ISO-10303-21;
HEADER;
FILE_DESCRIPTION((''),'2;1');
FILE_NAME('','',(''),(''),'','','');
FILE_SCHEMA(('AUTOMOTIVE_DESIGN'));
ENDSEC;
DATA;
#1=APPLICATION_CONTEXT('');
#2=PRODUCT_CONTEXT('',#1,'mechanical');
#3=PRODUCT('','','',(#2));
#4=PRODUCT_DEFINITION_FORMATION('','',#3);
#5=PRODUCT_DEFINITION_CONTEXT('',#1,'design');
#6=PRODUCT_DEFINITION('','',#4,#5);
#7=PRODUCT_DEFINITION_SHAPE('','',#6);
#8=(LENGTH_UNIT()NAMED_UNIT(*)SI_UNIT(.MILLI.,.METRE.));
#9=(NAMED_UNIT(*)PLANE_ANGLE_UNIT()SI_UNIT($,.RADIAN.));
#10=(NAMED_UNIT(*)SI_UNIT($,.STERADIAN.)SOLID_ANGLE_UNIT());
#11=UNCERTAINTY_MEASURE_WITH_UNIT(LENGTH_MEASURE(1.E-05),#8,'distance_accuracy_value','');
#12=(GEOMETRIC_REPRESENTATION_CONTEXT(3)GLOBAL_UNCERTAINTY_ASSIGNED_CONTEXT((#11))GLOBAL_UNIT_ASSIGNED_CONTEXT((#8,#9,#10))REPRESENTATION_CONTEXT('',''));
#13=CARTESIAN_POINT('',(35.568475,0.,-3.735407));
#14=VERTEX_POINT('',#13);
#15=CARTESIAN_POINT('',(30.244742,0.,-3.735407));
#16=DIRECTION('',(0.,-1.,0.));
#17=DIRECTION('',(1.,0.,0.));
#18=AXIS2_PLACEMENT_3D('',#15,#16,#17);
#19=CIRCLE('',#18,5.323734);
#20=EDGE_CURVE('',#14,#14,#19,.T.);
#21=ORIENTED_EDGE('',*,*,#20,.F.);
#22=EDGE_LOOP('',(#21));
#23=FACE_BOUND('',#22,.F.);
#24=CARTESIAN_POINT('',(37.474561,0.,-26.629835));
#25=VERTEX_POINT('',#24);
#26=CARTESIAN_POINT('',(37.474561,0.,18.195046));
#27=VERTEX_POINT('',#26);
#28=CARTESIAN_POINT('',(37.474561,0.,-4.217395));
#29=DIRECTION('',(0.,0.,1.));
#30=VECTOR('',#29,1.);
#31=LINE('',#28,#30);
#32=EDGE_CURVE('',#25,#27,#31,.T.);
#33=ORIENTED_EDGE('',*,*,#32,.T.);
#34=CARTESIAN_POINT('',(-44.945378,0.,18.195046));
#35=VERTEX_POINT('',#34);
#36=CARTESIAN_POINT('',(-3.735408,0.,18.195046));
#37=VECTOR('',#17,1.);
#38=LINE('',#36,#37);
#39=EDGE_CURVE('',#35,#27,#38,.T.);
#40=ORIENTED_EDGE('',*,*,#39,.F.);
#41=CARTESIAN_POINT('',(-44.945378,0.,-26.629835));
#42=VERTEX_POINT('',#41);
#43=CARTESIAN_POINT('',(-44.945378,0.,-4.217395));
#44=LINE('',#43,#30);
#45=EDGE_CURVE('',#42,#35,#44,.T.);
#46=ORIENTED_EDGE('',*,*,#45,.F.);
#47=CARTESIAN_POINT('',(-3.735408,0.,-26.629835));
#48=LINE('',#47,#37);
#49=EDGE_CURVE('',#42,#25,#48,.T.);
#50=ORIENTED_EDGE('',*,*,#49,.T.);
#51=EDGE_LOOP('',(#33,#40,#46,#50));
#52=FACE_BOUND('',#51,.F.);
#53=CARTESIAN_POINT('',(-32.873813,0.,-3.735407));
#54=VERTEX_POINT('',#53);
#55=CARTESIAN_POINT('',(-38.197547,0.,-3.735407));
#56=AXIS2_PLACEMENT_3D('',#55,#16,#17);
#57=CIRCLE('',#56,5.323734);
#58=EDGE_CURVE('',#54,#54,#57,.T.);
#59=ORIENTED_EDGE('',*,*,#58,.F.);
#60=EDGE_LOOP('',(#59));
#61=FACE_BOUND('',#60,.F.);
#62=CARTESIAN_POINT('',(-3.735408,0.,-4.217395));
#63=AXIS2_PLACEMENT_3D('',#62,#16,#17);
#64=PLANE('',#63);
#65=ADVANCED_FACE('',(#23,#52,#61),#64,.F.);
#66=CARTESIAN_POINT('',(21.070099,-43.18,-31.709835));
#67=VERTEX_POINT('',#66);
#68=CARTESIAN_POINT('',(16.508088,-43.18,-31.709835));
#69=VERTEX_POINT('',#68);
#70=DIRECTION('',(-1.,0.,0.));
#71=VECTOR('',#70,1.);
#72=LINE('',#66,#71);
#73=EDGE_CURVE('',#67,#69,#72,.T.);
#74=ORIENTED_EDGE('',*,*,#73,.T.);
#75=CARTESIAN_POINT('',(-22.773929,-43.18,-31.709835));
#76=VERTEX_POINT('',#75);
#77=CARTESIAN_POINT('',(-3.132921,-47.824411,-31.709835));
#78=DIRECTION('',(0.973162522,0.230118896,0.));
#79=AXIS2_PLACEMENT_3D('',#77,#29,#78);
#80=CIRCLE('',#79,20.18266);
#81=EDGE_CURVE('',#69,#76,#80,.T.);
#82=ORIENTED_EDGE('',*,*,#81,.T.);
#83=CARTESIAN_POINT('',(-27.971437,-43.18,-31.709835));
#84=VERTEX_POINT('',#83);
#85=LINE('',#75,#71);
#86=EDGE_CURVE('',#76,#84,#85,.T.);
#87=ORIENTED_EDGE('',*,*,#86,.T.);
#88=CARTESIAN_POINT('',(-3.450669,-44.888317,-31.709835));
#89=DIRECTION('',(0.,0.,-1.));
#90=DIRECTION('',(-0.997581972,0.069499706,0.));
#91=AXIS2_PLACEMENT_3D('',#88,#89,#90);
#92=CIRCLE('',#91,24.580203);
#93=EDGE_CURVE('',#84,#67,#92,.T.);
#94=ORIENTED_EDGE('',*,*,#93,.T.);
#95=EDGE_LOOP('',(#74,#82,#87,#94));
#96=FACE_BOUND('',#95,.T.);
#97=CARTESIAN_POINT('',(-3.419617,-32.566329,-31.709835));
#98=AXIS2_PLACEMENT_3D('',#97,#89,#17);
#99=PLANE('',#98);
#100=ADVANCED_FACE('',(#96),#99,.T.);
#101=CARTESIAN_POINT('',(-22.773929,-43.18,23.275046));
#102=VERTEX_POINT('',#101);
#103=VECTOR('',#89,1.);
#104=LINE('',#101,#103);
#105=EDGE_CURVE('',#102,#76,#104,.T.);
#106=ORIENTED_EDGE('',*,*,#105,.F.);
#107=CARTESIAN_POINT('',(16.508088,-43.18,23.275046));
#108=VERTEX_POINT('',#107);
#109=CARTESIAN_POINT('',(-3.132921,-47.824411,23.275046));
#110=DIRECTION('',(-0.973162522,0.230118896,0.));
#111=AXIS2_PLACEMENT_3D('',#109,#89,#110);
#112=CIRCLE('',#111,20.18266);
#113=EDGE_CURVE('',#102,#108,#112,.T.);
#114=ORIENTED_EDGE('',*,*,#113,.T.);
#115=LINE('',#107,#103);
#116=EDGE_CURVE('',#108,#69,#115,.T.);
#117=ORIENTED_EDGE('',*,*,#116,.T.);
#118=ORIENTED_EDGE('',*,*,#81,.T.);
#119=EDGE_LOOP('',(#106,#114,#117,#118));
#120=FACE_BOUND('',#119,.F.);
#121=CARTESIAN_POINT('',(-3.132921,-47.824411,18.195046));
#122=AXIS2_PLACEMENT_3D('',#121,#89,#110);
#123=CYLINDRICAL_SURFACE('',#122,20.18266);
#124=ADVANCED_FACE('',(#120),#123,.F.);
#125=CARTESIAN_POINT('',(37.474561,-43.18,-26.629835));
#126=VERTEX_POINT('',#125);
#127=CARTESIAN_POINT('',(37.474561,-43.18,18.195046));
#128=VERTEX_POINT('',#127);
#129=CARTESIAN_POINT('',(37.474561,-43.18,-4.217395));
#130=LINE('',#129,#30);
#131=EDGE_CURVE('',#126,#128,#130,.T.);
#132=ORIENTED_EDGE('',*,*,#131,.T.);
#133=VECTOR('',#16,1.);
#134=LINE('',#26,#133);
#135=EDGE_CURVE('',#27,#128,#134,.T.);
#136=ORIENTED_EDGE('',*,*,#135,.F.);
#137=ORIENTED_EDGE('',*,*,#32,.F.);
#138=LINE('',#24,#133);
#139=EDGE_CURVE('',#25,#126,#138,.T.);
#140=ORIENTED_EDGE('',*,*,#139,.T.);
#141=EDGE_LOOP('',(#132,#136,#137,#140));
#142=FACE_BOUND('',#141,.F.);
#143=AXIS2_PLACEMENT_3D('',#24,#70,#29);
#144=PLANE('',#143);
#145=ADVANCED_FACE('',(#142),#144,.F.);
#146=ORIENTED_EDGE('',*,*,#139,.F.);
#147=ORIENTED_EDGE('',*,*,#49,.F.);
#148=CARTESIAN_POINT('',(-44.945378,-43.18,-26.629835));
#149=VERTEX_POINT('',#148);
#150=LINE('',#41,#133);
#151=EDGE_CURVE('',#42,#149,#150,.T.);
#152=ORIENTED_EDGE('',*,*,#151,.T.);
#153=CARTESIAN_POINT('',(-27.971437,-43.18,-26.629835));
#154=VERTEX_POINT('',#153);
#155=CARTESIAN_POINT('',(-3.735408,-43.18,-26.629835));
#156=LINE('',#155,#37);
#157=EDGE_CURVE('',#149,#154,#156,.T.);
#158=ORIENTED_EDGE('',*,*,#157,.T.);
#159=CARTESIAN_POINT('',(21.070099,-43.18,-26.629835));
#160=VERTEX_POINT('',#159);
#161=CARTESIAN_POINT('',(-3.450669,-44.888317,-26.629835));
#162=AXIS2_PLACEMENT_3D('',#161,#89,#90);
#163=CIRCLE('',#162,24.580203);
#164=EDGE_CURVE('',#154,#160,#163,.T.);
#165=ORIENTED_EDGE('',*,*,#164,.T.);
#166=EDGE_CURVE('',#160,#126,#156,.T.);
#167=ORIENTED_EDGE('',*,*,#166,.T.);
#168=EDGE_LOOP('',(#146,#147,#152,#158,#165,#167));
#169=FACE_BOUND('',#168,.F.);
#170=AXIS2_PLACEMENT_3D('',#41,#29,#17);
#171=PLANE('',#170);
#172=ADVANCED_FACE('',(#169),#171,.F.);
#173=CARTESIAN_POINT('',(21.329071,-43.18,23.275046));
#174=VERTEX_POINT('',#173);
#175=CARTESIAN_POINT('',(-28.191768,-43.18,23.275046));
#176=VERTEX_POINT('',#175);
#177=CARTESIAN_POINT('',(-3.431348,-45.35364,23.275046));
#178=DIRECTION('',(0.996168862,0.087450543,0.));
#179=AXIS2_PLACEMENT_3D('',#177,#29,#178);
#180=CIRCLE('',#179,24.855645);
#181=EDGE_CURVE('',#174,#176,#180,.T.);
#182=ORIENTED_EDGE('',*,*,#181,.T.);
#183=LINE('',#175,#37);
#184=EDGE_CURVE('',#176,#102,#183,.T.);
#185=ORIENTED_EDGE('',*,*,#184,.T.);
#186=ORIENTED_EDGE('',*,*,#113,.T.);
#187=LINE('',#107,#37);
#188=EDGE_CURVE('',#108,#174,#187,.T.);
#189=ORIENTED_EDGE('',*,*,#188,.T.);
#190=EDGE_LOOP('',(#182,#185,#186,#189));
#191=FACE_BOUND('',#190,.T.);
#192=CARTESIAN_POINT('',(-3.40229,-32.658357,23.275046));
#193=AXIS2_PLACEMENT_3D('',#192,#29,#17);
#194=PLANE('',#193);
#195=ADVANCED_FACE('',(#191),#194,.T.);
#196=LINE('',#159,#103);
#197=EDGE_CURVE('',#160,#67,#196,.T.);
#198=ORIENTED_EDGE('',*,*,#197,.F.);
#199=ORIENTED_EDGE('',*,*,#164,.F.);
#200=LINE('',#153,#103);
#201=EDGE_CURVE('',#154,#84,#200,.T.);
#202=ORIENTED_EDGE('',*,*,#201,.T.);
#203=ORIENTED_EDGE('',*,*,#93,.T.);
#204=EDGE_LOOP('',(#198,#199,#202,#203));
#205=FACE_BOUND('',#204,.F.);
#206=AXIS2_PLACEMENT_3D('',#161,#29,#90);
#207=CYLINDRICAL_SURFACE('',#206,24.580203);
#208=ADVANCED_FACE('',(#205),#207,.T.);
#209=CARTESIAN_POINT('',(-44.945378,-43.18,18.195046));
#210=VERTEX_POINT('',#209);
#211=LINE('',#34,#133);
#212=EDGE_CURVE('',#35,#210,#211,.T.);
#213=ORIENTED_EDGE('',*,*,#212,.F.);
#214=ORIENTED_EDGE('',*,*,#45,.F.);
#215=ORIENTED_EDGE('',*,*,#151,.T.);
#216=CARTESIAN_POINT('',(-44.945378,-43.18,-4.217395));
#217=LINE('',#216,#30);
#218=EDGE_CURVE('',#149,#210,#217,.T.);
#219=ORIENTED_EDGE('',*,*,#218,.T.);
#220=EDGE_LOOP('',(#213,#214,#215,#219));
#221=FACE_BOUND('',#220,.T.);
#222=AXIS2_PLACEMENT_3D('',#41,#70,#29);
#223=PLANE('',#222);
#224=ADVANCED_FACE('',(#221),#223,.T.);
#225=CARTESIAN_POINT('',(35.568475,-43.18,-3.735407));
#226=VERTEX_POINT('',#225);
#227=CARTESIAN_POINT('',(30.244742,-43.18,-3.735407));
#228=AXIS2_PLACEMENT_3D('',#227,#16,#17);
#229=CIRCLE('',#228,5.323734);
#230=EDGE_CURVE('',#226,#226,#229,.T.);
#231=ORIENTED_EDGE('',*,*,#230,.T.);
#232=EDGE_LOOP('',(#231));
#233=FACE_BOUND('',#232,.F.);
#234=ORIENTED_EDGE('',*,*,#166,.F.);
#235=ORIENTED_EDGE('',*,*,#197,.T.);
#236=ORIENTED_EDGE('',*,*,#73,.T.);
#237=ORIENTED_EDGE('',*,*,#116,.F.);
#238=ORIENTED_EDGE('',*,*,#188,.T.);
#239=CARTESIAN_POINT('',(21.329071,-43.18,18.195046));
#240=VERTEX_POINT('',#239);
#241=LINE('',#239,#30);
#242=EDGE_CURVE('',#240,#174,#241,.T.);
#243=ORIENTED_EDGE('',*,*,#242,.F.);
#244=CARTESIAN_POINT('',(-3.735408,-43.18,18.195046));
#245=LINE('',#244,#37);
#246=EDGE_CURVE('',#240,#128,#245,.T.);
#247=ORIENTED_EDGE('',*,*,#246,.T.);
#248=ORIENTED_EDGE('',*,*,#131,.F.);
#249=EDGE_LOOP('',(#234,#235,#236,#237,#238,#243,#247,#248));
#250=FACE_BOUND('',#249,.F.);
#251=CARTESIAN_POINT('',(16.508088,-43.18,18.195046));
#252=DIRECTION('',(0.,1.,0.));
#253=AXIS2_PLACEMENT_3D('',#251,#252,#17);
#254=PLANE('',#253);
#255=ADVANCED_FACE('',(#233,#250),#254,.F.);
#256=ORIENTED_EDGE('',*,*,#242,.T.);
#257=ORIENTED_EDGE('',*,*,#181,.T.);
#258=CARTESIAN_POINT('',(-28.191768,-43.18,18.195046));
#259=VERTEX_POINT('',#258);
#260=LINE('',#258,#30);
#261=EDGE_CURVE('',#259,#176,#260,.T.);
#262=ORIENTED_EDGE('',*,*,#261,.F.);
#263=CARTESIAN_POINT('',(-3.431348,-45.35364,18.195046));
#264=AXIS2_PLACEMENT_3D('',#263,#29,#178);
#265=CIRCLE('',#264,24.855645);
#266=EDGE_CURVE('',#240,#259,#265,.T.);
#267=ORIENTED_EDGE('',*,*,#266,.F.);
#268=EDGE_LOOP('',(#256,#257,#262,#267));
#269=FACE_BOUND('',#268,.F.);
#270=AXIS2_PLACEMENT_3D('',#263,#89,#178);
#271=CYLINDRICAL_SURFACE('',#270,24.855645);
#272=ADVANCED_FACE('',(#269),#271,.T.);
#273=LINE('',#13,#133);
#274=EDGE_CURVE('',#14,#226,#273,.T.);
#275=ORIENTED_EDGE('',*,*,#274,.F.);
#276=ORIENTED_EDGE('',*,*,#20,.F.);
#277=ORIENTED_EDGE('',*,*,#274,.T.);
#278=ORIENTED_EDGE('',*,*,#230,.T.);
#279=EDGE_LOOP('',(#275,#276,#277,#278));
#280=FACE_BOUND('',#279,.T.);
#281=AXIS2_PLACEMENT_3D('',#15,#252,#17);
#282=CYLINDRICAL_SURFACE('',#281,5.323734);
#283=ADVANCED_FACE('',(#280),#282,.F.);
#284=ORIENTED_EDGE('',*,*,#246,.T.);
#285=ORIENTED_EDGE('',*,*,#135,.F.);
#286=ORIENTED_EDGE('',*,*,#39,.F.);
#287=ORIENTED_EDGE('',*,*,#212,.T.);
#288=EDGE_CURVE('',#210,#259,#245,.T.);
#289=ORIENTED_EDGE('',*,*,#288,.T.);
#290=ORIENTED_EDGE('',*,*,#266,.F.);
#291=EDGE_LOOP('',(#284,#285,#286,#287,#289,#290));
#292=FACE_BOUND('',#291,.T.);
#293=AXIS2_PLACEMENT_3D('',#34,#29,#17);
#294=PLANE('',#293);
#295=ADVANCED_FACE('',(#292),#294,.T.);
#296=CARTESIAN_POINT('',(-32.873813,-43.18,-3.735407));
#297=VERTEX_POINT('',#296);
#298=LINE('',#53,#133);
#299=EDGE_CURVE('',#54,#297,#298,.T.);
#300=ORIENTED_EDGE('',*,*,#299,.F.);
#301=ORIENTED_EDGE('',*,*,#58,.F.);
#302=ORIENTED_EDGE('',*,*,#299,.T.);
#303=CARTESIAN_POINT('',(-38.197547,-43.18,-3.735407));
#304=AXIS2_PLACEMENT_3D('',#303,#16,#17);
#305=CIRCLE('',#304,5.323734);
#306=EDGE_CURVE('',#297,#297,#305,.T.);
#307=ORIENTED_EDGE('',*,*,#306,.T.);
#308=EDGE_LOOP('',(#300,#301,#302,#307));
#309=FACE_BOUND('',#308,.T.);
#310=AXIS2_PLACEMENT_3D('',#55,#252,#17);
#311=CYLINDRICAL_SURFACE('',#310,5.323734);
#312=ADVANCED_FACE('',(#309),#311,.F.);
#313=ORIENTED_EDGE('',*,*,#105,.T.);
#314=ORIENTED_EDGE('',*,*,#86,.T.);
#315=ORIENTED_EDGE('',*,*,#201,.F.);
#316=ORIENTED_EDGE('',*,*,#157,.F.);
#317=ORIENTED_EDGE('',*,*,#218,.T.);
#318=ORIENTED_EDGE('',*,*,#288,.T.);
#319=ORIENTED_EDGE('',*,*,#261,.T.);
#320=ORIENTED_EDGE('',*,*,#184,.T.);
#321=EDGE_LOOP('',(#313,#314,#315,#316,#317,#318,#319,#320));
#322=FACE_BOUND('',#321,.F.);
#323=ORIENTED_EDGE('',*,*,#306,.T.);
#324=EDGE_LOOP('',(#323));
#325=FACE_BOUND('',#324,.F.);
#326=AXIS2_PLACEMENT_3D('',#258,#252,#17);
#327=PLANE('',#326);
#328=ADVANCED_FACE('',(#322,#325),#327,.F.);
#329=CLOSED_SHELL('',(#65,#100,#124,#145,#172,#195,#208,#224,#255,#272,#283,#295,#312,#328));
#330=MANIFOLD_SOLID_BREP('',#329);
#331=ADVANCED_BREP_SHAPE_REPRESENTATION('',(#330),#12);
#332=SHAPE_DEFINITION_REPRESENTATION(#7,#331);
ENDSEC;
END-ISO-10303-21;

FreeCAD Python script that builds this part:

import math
import FreeCAD as App
import Part
import Sketcher
from FreeCAD import Vector
Q = App.Units.Quantity


def add_polygon(sketch, points):
    """Adds a closed chain of lines whose ends are joined by coincident constraints."""
    first, n = sketch.GeometryCount, len(points)
    for a, b in zip(points, points[1:] + points[:1]):
        sketch.addGeometry(Part.LineSegment(App.Vector(*a, 0), App.Vector(*b, 0)), False)
    for i in range(n):
        sketch.addConstraint(Sketcher.Constraint("Coincident", first + i, 2, first + (i + 1) % n, 1))

doc = App.newDocument("Part")
body = doc.addObject("PartDesign::Body", "Body")

sketch1 = body.newObject("Sketcher::SketchObject", "Sketch")
sketch1.AttachmentSupport = (doc.getObject("XZ_Plane"), [""])
sketch1.MapMode = "FlatFace"
add_polygon(sketch1, [(-45, 18), (-45, -27), (37, -27), (37, 18)])
sketch1.addGeometry(Part.Circle(Vector(-38, -4, 0), Vector(0, 0, 1), 5), False)
sketch1.addGeometry(Part.Circle(Vector(30, -4, 0), Vector(0, 0, 1), 5), False)
sketch1.addConstraint([
    Sketcher.Constraint("Vertical", 0),
    Sketcher.Constraint("Horizontal", 1),
    Sketcher.Constraint("Vertical", 2),
    Sketcher.Constraint("Horizontal", 3),
    Sketcher.Constraint("Equal", 4, 5),
    Sketcher.Constraint("Horizontal", 4, 3, 5, 3),
    Sketcher.Constraint("Diameter", 4, Q("10.647468 mm")),
    Sketcher.Constraint("DistanceX", 1, 1, 1, 2, Q("82.419939 mm")),
    Sketcher.Constraint("DistanceY", 0, 2, 0, 1, Q("44.824881 mm")),
    Sketcher.Constraint("DistanceX", -1, 1, 5, 3, Q("30.244742 mm")),
    Sketcher.Constraint("DistanceX", -1, 1, 1, 2, Q("37.474561 mm")),
    Sketcher.Constraint("DistanceX", 4, 3, 5, 3, Q("68.442289 mm")),
    Sketcher.Constraint("DistanceY", 0, 2, 4, 3, Q("22.894429 mm")),
    Sketcher.Constraint("DistanceY", 4, 3, -1, 1, Q("3.735407 mm")),
])
pad1 = body.newObject("PartDesign::Pad", "Pad")
pad1.Profile = sketch1
pad1.Length = Q("1.7 in")

sketch2 = body.newObject("Sketcher::SketchObject", "Sketch001")
sketch2.AttachmentSupport = (doc.getObject("XY_Plane"), [""])
sketch2.MapMode = "FlatFace"
sketch2.AttachmentOffset = App.Placement(Vector(0, 0, -26.629835), App.Rotation())
sketch2.addGeometry([
    Part.LineSegment(Vector(17, -43, 0), Vector(-23, -43, 0)),
    Part.ArcOfCircle(Part.Circle(Vector(-3, -48, 0), Vector(0, 0, 1), 20), math.radians(13), math.radians(167)),
], False)
sketch2.addConstraint([
    Sketcher.Constraint("Coincident", 0, 1, 1, 1),
    Sketcher.Constraint("Coincident", 1, 2, 0, 2),
    Sketcher.Constraint("Horizontal", 0),
    Sketcher.Constraint("DistanceY", 0, 1, -1, 1, Q("1.7 in")),
    Sketcher.Constraint("Radius", 1, Q("20.18266 mm")),
    Sketcher.Constraint("DistanceX", 0, 2, 0, 1, Q("39.282016 mm")),
    Sketcher.Constraint("DistanceX", 1, 3, -1, 1, Q("3.132921 mm")),
])
pocket1 = body.newObject("PartDesign::Pocket", "Pocket")
pocket1.Profile = sketch2
pocket1.Length = Q("2 in")
pocket1.Reversed = True

sketch3 = body.newObject("Sketcher::SketchObject", "Sketch002")
sketch3.AttachmentSupport = (doc.getObject("XY_Plane"), [""])
sketch3.MapMode = "FlatFace"
sketch3.AttachmentOffset = App.Placement(Vector(0, 0, -26.629835), App.Rotation())
sketch3.addGeometry([
    Part.LineSegment(Vector(-22.8, -43.2, 0), Vector(-28, -43.2, 0)),
    Part.ArcOfCircle(Part.Circle(Vector(-3.5, -44.9, 0), Vector(0, 0, 1), 24.6), math.radians(4), math.radians(176)),
    Part.LineSegment(Vector(21.1, -43.2, 0), Vector(16.5, -43.2, 0)),
    Part.ArcOfCircle(Part.Circle(Vector(-3.1, -47.8, 0), Vector(0, 0, 1), 20.2), math.radians(13), math.radians(167)),
], False)
sketch3.addConstraint([
    Sketcher.Constraint("Coincident", 0, 2, 1, 2),
    Sketcher.Constraint("Coincident", 1, 1, 2, 1),
    Sketcher.Constraint("Coincident", 2, 2, 3, 1),
    Sketcher.Constraint("Coincident", 3, 2, 0, 1),
    Sketcher.Constraint("Horizontal", 0),
    Sketcher.Constraint("Horizontal", 2),
    Sketcher.Constraint("Horizontal", 0, 2, 1, 1),
    Sketcher.Constraint("DistanceY", 0, 2, -1, 1, Q("1.7 in")),
    Sketcher.Constraint("Radius", 3, Q("20.18266 mm")),
    Sketcher.Constraint("Radius", 1, Q("24.580203 mm")),
    Sketcher.Constraint("DistanceX", 0, 2, 0, 1, Q("5.197508 mm")),
    Sketcher.Constraint("DistanceX", 2, 2, 2, 1, Q("4.562011 mm")),
    Sketcher.Constraint("DistanceX", -1, 1, 1, 1, Q("21.070099 mm")),
    Sketcher.Constraint("DistanceX", 1, 3, -1, 1, Q("3.450669 mm")),
])
pad2 = body.newObject("PartDesign::Pad", "Pad001")
pad2.Profile = sketch3
pad2.Length = Q("0.2 in")
pad2.Reversed = True

sketch4 = body.newObject("Sketcher::SketchObject", "Sketch003")
sketch4.AttachmentSupport = (doc.getObject("XY_Plane"), [""])
sketch4.MapMode = "FlatFace"
sketch4.AttachmentOffset = App.Placement(Vector(0, 0, 18.195046), App.Rotation())
sketch4.addGeometry([
    Part.LineSegment(Vector(16.5, -43.2, 0), Vector(21.3, -43.2, 0)),
    Part.ArcOfCircle(Part.Circle(Vector(-3.4, -45.4, 0), Vector(0, 0, 1), 24.9), math.radians(5), math.radians(175)),
    Part.LineSegment(Vector(-28.2, -43.2, 0), Vector(-22.8, -43.2, 0)),
    Part.ArcOfCircle(Part.Circle(Vector(-3.1, -47.8, 0), Vector(0, 0, 1), 20.2), math.radians(13), math.radians(167)),
], False)
sketch4.addConstraint([
    Sketcher.Constraint("Coincident", 0, 2, 1, 1),
    Sketcher.Constraint("Coincident", 1, 2, 2, 1),
    Sketcher.Constraint("Coincident", 2, 2, 3, 2),
    Sketcher.Constraint("Coincident", 3, 1, 0, 1),
    Sketcher.Constraint("Horizontal", 0),
    Sketcher.Constraint("Horizontal", 2),
    Sketcher.Constraint("Horizontal", 0, 2, 1, 2),
    Sketcher.Constraint("DistanceY", 0, 2, -1, 1, Q("1.7 in")),
    Sketcher.Constraint("Radius", 3, Q("20.18266 mm")),
    Sketcher.Constraint("Radius", 1, Q("24.855645 mm")),
    Sketcher.Constraint("DistanceX", 2, 1, 2, 2, Q("5.417839 mm")),
    Sketcher.Constraint("DistanceX", 2, 2, 0, 2, Q("44.103 mm")),
    Sketcher.Constraint("DistanceX", 0, 1, 0, 2, Q("4.820984 mm")),
    Sketcher.Constraint("DistanceX", 1, 3, -1, 1, Q("3.431348 mm")),
])
pad3 = body.newObject("PartDesign::Pad", "Pad002")
pad3.Profile = sketch4
pad3.Length = Q("0.2 in")

doc.recompute()
